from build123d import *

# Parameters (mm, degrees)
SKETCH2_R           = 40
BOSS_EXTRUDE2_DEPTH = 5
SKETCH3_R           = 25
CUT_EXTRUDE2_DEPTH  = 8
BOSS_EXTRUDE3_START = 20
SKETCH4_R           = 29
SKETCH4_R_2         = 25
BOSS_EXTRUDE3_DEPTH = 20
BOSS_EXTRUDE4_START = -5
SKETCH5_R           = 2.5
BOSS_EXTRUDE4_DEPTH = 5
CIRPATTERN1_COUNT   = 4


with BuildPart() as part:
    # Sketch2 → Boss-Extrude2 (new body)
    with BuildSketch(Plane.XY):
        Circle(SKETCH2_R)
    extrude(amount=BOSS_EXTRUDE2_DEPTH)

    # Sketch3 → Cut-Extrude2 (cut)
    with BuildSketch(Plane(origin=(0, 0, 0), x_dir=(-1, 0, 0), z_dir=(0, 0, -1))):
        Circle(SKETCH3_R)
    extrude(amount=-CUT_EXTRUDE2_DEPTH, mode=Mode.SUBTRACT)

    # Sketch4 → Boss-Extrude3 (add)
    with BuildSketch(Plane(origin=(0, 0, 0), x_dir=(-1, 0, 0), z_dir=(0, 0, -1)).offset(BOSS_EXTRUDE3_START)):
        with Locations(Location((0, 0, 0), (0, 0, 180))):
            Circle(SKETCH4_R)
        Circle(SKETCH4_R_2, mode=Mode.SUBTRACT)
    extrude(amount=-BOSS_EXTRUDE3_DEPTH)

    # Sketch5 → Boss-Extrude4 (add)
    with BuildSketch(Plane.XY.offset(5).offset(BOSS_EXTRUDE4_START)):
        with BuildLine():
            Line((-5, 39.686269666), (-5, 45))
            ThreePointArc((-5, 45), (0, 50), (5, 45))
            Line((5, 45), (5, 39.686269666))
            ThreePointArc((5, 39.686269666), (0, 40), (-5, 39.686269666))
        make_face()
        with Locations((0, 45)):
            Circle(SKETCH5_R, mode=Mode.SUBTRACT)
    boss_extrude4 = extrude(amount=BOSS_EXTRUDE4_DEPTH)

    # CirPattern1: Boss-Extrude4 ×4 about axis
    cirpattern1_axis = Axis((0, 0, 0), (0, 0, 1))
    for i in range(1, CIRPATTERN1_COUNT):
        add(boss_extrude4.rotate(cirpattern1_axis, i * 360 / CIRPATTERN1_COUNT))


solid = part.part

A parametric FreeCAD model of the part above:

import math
import FreeCAD as App
import Part
import Sketcher
Q = App.Units.Quantity

doc = App.newDocument("Part")
params = doc.addObject("Spreadsheet::Sheet", "Params")
for row, (alias, value) in enumerate([
    ("sketch1_diameter", "80 mm"),
    ("pad1_length", "5 mm"),
    ("sketch2_diameter", "50 mm"),
    ("pocket1_length", "8 mm"),
    ("sketch3_diameter", "58 mm"),
    ("sketch3_diameter2", "50 mm"),
    ("pad2_length", "20 mm"),
    ("sketch4_diameter", "5 mm"),
    ("sketch4_radius", "40 mm"),
    ("sketch4_radius2", "5 mm"),
    ("pad3_length", "5 mm"),
], start=1):
    params.set(f"A{row}", alias)
    params.set(f"B{row}", "=" + value)
    params.setAlias(f"B{row}", alias)

body = doc.addObject("PartDesign::Body", "Body")

sketch1 = body.newObject("Sketcher::SketchObject", "Sketch")
sketch1.AttachmentSupport = (doc.getObject("XY_Plane"), [""])
sketch1.MapMode = "FlatFace"
sketch1.addGeometry(Part.Circle(App.Vector(0, 0, 0), App.Vector(0, 0, 1), 40), False)
sketch1.addConstraint(Sketcher.Constraint("Coincident", 0, 3, -1, 1))
sketch1.addConstraint(Sketcher.Constraint("Diameter", 0, Q("80 mm")))
sketch1.setExpression("Constraints[1]", "Params.sketch1_diameter")
pad1 = body.newObject("PartDesign::Pad", "Pad")
pad1.Profile = sketch1
pad1.setExpression("Length", "Params.pad1_length")

sketch2 = body.newObject("Sketcher::SketchObject", "Sketch001")
sketch2.AttachmentSupport = (doc.getObject("XY_Plane"), [""])
sketch2.MapMode = "FlatFace"
sketch2.addGeometry(Part.Circle(App.Vector(0, 0, 0), App.Vector(0, 0, 1), 25), False)
sketch2.addConstraint(Sketcher.Constraint("Coincident", 0, 3, -1, 1))
sketch2.addConstraint(Sketcher.Constraint("Diameter", 0, Q("50 mm")))
sketch2.setExpression("Constraints[1]", "Params.sketch2_diameter")
pocket1 = body.newObject("PartDesign::Pocket", "Pocket")
pocket1.Profile = sketch2
pocket1.setExpression("Length", "Params.pocket1_length")
pocket1.Reversed = True

sketch3 = body.newObject("Sketcher::SketchObject", "Sketch002")
sketch3.AttachmentSupport = (doc.getObject("XY_Plane"), [""])
sketch3.MapMode = "FlatFace"
sketch3.AttachmentOffset = App.Placement(App.Vector(0, 0, -20), App.Rotation())
sketch3.addGeometry(Part.Circle(App.Vector(0, 0, 0), App.Vector(0, 0, 1), 29), False)
sketch3.addGeometry(Part.Circle(App.Vector(0, 0, 0), App.Vector(0, 0, 1), 25), False)
sketch3.addConstraint(Sketcher.Constraint("Coincident", 0, 3, -1, 1))
sketch3.addConstraint(Sketcher.Constraint("Coincident", 1, 3, -1, 1))
sketch3.addConstraint(Sketcher.Constraint("Diameter", 0, Q("58 mm")))
sketch3.addConstraint(Sketcher.Constraint("Diameter", 1, Q("50 mm")))
sketch3.setExpression("Constraints[2]", "Params.sketch3_diameter")
sketch3.setExpression("Constraints[3]", "Params.sketch3_diameter2")
pad2 = body.newObject("PartDesign::Pad", "Pad001")
pad2.Profile = sketch3
pad2.setExpression("Length", "Params.pad2_length")

sketch4 = body.newObject("Sketcher::SketchObject", "Sketch003")
sketch4.AttachmentSupport = (doc.getObject("XY_Plane"), [""])
sketch4.MapMode = "FlatFace"
sketch4.addGeometry(Part.LineSegment(App.Vector(-5, 45, 0), App.Vector(-5, 39.7, 0)), False)
sketch4.addGeometry(Part.ArcOfCircle(Part.Circle(App.Vector(0, 0, 0), App.Vector(0, 0, 1), 40), math.radians(82.82), math.radians(97.18)), False)
sketch4.addGeometry(Part.LineSegment(App.Vector(5, 39.7, 0), App.Vector(5, 45, 0)), False)
sketch4.addGeometry(Part.ArcOfCircle(Part.Circle(App.Vector(0, 45, 0), App.Vector(0, 0, 1), 5), math.radians(0), math.radians(180)), False)
sketch4.addGeometry(Part.Circle(App.Vector(0, 45, 0), App.Vector(0, 0, 1), 2.5), False)
sketch4.addConstraint(Sketcher.Constraint("Coincident", 0, 2, 1, 2))
sketch4.addConstraint(Sketcher.Constraint("Coincident", 1, 1, 2, 1))
sketch4.addConstraint(Sketcher.Constraint("Tangent", 2, 2, 3, 1))
sketch4.addConstraint(Sketcher.Constraint("Tangent", 3, 2, 0, 1))
sketch4.addConstraint(Sketcher.Constraint("Vertical", 0))
sketch4.addConstraint(Sketcher.Constraint("Vertical", 2))
sketch4.addConstraint(Sketcher.Constraint("Coincident", 1, 3, -1, 1))
sketch4.addConstraint(Sketcher.Constraint("Coincident", 4, 3, 3, 3))
sketch4.addConstraint(Sketcher.Constraint("PointOnObject", 3, 3, -2))
sketch4.addConstraint(Sketcher.Constraint("Diameter", 4, Q("5 mm")))
sketch4.addConstraint(Sketcher.Constraint("Radius", 1, Q("40 mm")))
sketch4.addConstraint(Sketcher.Constraint("Radius", 3, Q("5 mm")))
sketch4.addConstraint(Sketcher.Constraint("DistanceY", -1, 1, 3, 3, Q("45 mm")))
sketch4.setExpression("Constraints[9]", "Params.sketch4_diameter")
sketch4.setExpression("Constraints[10]", "Params.sketch4_radius")
sketch4.setExpression("Constraints[11]", "Params.sketch4_radius2")
pad3 = body.newObject("PartDesign::Pad", "Pad002")
pad3.Profile = sketch4
pad3.setExpression("Length", "Params.pad3_length")
doc.recompute()

polarpattern = body.newObject("PartDesign::PolarPattern", "PolarPattern")
polarpattern.Originals = [pad3]
polarpattern.Axis = (doc.getObject("Z_Axis"), [""])
polarpattern.Angle = 360
polarpattern.Occurrences = 4
body.Tip = polarpattern

doc.recompute()
